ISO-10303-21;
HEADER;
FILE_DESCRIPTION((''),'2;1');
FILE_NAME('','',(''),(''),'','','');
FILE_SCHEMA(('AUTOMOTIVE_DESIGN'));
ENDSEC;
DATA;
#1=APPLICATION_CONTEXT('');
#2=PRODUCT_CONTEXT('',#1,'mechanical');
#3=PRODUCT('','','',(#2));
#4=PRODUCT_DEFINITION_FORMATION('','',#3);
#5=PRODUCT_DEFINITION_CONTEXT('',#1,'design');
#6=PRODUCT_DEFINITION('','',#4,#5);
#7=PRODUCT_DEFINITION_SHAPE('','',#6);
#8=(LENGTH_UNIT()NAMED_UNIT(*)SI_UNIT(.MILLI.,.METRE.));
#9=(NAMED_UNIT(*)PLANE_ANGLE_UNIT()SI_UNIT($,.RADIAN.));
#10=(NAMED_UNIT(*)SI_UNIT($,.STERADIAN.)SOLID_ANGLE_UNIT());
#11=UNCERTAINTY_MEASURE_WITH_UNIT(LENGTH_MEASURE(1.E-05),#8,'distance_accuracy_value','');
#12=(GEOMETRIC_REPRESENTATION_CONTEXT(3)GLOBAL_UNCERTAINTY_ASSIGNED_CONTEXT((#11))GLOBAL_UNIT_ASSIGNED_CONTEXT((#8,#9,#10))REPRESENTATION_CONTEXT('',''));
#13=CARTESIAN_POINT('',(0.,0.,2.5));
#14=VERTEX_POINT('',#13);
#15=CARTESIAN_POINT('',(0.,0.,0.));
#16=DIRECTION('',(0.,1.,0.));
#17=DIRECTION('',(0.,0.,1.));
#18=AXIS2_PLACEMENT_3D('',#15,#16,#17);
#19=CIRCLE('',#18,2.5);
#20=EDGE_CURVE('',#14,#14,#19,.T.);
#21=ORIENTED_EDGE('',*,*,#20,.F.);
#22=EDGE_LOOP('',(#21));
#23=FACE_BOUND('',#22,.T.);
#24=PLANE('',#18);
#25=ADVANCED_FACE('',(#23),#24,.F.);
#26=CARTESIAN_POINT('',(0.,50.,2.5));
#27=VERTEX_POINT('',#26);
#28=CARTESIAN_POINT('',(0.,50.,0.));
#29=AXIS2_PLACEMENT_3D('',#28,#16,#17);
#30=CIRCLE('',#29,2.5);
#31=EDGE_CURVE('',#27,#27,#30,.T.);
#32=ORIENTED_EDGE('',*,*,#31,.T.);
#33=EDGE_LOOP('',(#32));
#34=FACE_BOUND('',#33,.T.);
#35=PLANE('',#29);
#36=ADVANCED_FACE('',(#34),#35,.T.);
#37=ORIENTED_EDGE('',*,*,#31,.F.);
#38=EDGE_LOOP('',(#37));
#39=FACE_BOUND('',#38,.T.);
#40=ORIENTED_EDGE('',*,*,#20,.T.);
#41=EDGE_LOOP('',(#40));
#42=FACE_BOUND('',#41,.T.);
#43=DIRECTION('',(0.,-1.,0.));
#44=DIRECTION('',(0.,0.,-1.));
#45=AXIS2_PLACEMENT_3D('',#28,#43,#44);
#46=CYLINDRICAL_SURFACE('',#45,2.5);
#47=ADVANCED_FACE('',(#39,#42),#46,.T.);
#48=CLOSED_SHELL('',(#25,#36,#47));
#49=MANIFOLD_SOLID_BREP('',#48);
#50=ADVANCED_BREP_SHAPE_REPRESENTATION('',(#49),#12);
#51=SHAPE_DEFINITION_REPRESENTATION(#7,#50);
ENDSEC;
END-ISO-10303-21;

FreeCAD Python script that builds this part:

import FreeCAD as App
import Part
import Sketcher

V = App.Vector

doc = App.newDocument("Part")
body = doc.addObject("PartDesign::Body", "Body")

sketch1 = doc.addObject("Sketcher::SketchObject", "Sketch")
body.addObject(sketch1)
sketch1.AttachmentSupport = (doc.XZ_Plane, [""])
sketch1.MapMode = "FlatFace"
sketch1.addGeometry(Part.Circle(V(0, 0, 0), V(0, 0, 1), 2.5), False)
sketch1.addConstraint(Sketcher.Constraint("Coincident", 0, 3, -1, 1))
sketch1.addConstraint(Sketcher.Constraint("Diameter", 0, 5.0))
pad1 = doc.addObject("PartDesign::Pad", "Pad")
body.addObject(pad1)
pad1.Profile = sketch1
pad1.Length = 50
pad1.Reversed = True

doc.recompute()
